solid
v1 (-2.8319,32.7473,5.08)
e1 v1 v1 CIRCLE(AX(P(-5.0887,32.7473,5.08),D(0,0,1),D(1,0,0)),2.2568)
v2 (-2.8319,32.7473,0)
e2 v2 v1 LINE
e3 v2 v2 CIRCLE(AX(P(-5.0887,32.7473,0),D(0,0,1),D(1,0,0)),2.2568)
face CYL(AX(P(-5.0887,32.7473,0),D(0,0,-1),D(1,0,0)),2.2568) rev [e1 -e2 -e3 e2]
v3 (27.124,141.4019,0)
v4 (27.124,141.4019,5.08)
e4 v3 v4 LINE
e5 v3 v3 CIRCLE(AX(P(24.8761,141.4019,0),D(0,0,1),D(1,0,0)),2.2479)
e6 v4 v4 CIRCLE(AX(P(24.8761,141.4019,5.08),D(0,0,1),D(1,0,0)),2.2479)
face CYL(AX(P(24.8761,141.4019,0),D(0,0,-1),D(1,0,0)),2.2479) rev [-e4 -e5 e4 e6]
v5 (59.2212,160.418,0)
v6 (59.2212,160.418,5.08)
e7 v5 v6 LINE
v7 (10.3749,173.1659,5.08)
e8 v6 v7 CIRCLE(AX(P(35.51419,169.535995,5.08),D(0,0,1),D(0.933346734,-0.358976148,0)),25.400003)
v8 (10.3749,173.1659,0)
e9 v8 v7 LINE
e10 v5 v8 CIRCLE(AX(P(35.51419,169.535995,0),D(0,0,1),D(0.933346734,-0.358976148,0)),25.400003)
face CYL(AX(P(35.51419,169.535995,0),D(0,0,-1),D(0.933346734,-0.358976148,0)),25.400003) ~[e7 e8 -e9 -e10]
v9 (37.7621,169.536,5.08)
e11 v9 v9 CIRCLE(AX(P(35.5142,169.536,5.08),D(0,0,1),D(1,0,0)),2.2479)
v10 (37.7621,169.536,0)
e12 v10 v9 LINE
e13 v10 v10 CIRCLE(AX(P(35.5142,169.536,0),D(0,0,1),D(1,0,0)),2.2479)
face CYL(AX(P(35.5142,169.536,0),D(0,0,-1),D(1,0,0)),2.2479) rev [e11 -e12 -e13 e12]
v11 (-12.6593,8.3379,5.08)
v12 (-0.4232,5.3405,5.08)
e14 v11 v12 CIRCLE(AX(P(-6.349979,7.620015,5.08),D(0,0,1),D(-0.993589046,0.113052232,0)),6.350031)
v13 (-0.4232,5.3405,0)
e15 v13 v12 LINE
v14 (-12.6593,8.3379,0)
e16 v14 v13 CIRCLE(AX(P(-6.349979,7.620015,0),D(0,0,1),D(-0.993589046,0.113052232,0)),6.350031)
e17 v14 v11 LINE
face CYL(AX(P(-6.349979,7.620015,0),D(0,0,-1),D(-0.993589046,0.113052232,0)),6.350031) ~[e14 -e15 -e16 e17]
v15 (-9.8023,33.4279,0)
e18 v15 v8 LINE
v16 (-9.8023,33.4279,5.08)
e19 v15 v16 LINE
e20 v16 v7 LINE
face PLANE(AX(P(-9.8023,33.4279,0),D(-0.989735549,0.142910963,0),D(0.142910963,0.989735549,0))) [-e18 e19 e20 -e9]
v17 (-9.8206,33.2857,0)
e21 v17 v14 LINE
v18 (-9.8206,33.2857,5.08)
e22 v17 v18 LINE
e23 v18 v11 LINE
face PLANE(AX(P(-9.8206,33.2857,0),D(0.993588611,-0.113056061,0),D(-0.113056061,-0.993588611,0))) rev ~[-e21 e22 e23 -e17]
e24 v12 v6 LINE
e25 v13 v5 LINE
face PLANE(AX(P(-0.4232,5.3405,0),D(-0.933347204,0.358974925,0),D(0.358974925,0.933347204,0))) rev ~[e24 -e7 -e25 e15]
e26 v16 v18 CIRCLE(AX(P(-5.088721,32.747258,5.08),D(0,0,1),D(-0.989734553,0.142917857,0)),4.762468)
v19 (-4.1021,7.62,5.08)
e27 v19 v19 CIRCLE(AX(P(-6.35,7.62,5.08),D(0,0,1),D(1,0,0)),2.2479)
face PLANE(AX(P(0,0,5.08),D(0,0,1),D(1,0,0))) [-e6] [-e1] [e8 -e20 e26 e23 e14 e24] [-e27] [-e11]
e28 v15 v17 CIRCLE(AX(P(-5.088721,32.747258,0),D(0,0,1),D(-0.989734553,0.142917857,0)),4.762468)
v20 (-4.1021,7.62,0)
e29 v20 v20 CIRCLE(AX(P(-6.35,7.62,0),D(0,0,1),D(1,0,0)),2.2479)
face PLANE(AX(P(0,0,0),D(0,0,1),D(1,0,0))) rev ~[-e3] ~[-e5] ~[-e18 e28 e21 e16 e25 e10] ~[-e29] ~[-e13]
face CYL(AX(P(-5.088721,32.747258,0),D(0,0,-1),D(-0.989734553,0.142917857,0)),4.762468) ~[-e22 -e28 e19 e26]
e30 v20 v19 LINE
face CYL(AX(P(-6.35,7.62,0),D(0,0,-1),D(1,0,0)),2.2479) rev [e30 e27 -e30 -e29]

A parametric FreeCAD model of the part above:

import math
import FreeCAD as App
import Part
import Sketcher
from FreeCAD import Vector
Q = App.Units.Quantity

doc = App.newDocument("Part")
params = doc.addObject("Spreadsheet::Sheet", "Params")
for row, (alias, value) in enumerate([
    ("sketch1_radius", "1 in"),
    ("sketch1_radius2", "0.25 in"),
    ("sketch1_diameter", "0.177 in"),
    ("sketch1_radius3", "0.1875 in"),
    ("pad1_length", "0.2 in"),
], start=1):
    params.set(f"A{row}", alias)
    params.set(f"B{row}", "=" + value)
    params.setAlias(f"B{row}", alias)

body = doc.addObject("PartDesign::Body", "Body")

# Sketch on XY plane
sketch1 = doc.addObject("Sketcher::SketchObject", "Sketch")
body.addObject(sketch1)
sketch1.AttachmentSupport = (doc.XY_Plane, [""])
sketch1.MapMode = "FlatFace"
sketch1.addGeometry([
    Part.LineSegment(Vector(-0.42, 5.34, 0), Vector(59.22, 160.42, 0)),  # 0
    Part.ArcOfCircle(Part.Circle(Vector(35.51, 169.54, 0), Vector(0, 0, 1), 25.4), math.radians(-21), math.radians(172)),  # 1
    Part.LineSegment(Vector(10.37, 173.17, 0), Vector(-9.8, 33.43, 0)),  # 2
    Part.ArcOfCircle(Part.Circle(Vector(-5.09, 32.75, 0), Vector(0, 0, 1), 4.76), math.radians(171.78), math.radians(173.51)),  # 3
    Part.LineSegment(Vector(-9.82, 33.29, 0), Vector(-12.66, 8.34, 0)),  # 4
    Part.ArcOfCircle(Part.Circle(Vector(-6.35, 7.62, 0), Vector(0, 0, 1), 6.35), math.radians(174), math.radians(339)),  # 5
    Part.Circle(Vector(-6.35, 7.62, 0), Vector(0, 0, 1), 2.25),  # 6
    Part.Circle(Vector(-5.09, 32.75, 0), Vector(0, 0, 1), 2.26),  # 7
    Part.Circle(Vector(24.88, 141.4, 0), Vector(0, 0, 1), 2.25),  # 8
    Part.Circle(Vector(35.51, 169.54, 0), Vector(0, 0, 1), 2.25),  # 9
], False)
sketch1.addConstraint([
    Sketcher.Constraint("Tangent", 0, 2, 1, 1),
    Sketcher.Constraint("Tangent", 1, 2, 2, 1),
    Sketcher.Constraint("Tangent", 2, 2, 3, 1),
    Sketcher.Constraint("Tangent", 3, 2, 4, 1),
    Sketcher.Constraint("Tangent", 4, 2, 5, 1),
    Sketcher.Constraint("Tangent", 5, 2, 0, 1),
    Sketcher.Constraint("Coincident", 6, 3, 5, 3),
    Sketcher.Constraint("Coincident", 7, 3, 3, 3),
    Sketcher.Constraint("Coincident", 9, 3, 1, 3),
    Sketcher.Constraint("Equal", 6, 8),
    Sketcher.Constraint("Equal", 8, 9),
    Sketcher.Constraint("Radius", 1, Q("1 in")),
    Sketcher.Constraint("Radius", 5, Q("0.25 in")),
    Sketcher.Constraint("Diameter", 6, Q("0.177 in")),
    Sketcher.Constraint("Radius", 3, Q("0.1875 in")),
    Sketcher.Constraint("Diameter", 7, Q("0.1777 in")),
    Sketcher.Constraint("DistanceY", -1, 1, 5, 3, Q("0.3 in")),
    Sketcher.Constraint("DistanceX", 5, 3, -1, 1, Q("0.25 in")),
    Sketcher.Constraint("DistanceY", -1, 1, 8, 3, Q("5.567 in")),
    Sketcher.Constraint("DistanceY", 4, 2, 3, 3, Q("0.961 in")),
    Sketcher.Constraint("DistanceY", 5, 2, 4, 2, Q("0.118 in")),
    Sketcher.Constraint("DistanceX", -1, 1, 1, 3, Q("1.3982 in")),
    Sketcher.Constraint("DistanceY", 3, 3, 0, 2, Q("5.0264 in")),
    Sketcher.Constraint("DistanceX", 2, 2, 8, 3, Q("1.3653 in")),
])
sketch1.setExpression("Constraints[11]", "Params.sketch1_radius")
sketch1.setExpression("Constraints[12]", "Params.sketch1_radius2")
sketch1.setExpression("Constraints[13]", "Params.sketch1_diameter")
sketch1.setExpression("Constraints[14]", "Params.sketch1_radius3")
pad1 = doc.addObject("PartDesign::Pad", "Pad")
body.addObject(pad1)
pad1.Profile = sketch1
pad1.setExpression("Length", "Params.pad1_length")

doc.recompute()
